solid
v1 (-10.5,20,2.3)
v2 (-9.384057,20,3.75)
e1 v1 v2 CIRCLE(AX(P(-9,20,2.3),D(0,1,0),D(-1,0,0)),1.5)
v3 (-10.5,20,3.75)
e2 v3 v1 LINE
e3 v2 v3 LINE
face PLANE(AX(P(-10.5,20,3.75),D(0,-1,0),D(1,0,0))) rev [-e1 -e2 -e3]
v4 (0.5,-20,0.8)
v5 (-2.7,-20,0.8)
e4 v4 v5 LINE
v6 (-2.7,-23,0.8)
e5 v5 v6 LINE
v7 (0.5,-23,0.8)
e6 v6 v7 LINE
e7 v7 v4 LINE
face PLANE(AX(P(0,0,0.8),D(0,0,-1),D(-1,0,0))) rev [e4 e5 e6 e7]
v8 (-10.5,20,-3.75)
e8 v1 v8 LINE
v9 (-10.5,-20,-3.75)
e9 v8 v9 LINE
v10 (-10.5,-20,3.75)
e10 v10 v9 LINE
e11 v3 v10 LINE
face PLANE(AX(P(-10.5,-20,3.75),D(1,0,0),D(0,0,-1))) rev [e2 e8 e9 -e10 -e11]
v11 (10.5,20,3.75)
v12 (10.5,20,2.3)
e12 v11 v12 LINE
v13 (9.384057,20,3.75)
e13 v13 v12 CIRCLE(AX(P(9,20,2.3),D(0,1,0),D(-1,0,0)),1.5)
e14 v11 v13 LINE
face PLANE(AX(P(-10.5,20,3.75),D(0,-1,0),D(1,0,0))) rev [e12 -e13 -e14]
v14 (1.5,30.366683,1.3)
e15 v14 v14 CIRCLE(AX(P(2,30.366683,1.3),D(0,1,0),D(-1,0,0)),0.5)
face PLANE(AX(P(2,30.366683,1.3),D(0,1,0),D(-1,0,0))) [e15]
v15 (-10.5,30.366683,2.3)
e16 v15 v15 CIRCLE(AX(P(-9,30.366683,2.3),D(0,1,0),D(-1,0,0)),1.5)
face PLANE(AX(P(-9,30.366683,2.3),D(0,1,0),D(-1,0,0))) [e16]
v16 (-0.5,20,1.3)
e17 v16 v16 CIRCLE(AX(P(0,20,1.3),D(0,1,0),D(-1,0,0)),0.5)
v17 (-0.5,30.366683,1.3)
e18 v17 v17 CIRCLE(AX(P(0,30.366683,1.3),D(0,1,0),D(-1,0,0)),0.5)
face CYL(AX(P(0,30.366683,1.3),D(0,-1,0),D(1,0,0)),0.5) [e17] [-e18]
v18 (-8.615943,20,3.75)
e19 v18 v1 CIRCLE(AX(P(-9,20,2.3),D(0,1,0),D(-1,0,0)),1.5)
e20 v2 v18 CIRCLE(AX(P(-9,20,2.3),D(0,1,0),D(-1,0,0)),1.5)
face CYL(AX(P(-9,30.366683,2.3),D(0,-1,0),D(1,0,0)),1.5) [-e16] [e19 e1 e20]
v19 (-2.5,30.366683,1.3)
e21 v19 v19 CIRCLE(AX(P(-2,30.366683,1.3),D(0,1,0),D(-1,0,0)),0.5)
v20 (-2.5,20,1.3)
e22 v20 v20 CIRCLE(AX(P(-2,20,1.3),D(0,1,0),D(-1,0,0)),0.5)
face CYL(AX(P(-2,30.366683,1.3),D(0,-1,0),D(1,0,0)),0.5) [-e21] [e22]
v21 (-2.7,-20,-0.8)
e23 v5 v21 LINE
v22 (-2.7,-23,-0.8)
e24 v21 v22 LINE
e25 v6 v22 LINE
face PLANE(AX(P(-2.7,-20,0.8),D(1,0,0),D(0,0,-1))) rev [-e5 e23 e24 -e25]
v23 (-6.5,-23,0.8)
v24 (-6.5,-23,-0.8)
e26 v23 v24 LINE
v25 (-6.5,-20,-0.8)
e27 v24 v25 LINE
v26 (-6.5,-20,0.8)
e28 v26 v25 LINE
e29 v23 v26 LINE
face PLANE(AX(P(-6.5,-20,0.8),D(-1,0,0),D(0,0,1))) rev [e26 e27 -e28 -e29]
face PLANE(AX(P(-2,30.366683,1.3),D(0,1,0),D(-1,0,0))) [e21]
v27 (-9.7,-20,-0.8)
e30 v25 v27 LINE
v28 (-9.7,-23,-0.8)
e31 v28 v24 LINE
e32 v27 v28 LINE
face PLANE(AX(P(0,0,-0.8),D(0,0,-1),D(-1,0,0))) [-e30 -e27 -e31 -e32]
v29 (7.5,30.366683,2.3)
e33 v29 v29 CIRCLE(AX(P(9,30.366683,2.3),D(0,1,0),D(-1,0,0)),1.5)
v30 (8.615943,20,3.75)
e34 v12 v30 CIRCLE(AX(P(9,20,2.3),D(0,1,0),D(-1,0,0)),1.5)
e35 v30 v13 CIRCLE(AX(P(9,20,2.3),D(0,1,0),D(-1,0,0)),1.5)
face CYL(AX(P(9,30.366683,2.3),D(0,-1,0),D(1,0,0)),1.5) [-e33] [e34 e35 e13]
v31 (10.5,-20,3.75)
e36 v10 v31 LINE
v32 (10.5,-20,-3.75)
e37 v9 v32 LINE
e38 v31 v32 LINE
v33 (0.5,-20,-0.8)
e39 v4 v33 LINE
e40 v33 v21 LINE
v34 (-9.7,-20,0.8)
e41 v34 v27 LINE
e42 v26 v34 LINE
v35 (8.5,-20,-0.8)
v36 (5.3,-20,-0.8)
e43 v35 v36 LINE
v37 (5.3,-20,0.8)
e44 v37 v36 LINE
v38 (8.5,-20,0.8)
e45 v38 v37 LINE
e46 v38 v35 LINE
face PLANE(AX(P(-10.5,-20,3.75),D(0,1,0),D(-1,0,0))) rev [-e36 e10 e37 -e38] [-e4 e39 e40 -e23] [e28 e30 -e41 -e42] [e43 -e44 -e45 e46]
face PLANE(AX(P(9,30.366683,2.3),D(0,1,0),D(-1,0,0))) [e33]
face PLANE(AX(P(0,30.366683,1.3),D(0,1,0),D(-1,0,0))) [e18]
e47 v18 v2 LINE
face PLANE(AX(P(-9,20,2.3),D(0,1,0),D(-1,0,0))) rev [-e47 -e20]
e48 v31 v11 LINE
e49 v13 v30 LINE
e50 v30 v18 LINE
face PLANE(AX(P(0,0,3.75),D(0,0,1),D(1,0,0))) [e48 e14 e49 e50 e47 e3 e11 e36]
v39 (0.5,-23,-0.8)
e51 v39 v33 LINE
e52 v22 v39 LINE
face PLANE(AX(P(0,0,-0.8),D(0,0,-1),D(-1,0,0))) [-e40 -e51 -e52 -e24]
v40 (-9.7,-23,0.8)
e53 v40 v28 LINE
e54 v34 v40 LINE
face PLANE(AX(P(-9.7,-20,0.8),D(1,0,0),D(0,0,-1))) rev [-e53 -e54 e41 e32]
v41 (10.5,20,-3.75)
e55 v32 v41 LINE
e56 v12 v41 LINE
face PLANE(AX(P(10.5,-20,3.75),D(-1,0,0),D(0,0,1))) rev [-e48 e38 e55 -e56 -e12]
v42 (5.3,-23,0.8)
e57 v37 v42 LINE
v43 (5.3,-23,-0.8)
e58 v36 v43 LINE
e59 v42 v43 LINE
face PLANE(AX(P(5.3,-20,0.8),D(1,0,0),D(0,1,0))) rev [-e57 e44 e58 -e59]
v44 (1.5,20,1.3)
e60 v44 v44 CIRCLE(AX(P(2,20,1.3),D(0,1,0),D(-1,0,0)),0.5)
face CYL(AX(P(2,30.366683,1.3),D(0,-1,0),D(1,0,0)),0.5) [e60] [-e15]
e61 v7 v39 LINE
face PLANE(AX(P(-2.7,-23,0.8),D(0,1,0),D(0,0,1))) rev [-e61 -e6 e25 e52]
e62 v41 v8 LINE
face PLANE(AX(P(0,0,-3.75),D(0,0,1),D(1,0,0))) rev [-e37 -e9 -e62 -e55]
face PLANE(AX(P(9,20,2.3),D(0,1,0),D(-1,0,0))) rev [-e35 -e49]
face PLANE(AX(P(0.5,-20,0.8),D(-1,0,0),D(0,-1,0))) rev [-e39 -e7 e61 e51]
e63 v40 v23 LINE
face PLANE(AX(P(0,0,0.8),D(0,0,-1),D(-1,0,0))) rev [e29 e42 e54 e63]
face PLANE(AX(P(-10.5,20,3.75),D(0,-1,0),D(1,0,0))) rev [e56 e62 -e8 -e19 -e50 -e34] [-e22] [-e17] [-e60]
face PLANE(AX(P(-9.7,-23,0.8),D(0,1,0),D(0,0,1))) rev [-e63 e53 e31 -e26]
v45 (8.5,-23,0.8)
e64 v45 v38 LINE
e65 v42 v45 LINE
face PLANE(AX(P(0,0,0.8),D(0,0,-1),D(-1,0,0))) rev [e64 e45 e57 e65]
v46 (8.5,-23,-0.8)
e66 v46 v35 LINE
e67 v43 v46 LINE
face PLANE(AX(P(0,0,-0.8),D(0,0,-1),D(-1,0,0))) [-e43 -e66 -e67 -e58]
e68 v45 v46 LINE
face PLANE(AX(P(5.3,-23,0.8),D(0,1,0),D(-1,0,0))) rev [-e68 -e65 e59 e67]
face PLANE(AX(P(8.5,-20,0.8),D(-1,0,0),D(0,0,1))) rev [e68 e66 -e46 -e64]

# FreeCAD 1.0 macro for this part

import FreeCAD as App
import Part
import Sketcher
Q = App.Units.Quantity

doc = App.newDocument("Part")
body = doc.addObject("PartDesign::Body", "Body")

sketch1 = body.newObject("Sketcher::SketchObject", "Sketch")
sketch1.AttachmentSupport = (doc.getObject("XY_Plane"), [""])
sketch1.MapMode = "FlatFace"
sketch1.addGeometry(Part.LineSegment(App.Vector(-10.5, -20, 0), App.Vector(10.5, -20, 0)), False)
sketch1.addGeometry(Part.LineSegment(App.Vector(10.5, -20, 0), App.Vector(10.5, 20, 0)), False)
sketch1.addGeometry(Part.LineSegment(App.Vector(10.5, 20, 0), App.Vector(-10.5, 20, 0)), False)
sketch1.addGeometry(Part.LineSegment(App.Vector(-10.5, 20, 0), App.Vector(-10.5, -20, 0)), False)
sketch1.addConstraint(Sketcher.Constraint("Coincident", 0, 2, 1, 1))
sketch1.addConstraint(Sketcher.Constraint("Coincident", 1, 2, 2, 1))
sketch1.addConstraint(Sketcher.Constraint("Coincident", 2, 2, 3, 1))
sketch1.addConstraint(Sketcher.Constraint("Coincident", 3, 2, 0, 1))
sketch1.addConstraint(Sketcher.Constraint("Horizontal", 0))
sketch1.addConstraint(Sketcher.Constraint("Vertical", 1))
sketch1.addConstraint(Sketcher.Constraint("Horizontal", 2))
sketch1.addConstraint(Sketcher.Constraint("Vertical", 3))
sketch1.addConstraint(Sketcher.Constraint("Symmetric", 0, 2, 2, 2, -1, 1))
sketch1.addConstraint(Sketcher.Constraint("DistanceX", 0, 1, 0, 2, Q("21 mm")))
sketch1.addConstraint(Sketcher.Constraint("DistanceY", 1, 1, 1, 2, Q("40 mm")))
pad1 = body.newObject("PartDesign::Pad", "Pad")
pad1.Profile = sketch1
pad1.Length = 7.5
pad1.Midplane = True

sketch2 = body.newObject("Sketcher::SketchObject", "Sketch001")
sketch2.AttachmentSupport = (doc.getObject("XY_Plane"), [""])
sketch2.MapMode = "FlatFace"
sketch2.addGeometry(Part.LineSegment(App.Vector(-9.7, -23, 0), App.Vector(-6.5, -23, 0)), False)
sketch2.addGeometry(Part.LineSegment(App.Vector(-6.5, -23, 0), App.Vector(-6.5, -20, 0)), False)
sketch2.addGeometry(Part.LineSegment(App.Vector(-6.5, -20, 0), App.Vector(-9.7, -20, 0)), False)
sketch2.addGeometry(Part.LineSegment(App.Vector(-9.7, -20, 0), App.Vector(-9.7, -23, 0)), False)
sketch2.addGeometry(Part.LineSegment(App.Vector(-2.7, -23, 0), App.Vector(0.5, -23, 0)), False)
sketch2.addGeometry(Part.LineSegment(App.Vector(0.5, -23, 0), App.Vector(0.5, -20, 0)), False)
sketch2.addGeometry(Part.LineSegment(App.Vector(0.5, -20, 0), App.Vector(-2.7, -20, 0)), False)
sketch2.addGeometry(Part.LineSegment(App.Vector(-2.7, -20, 0), App.Vector(-2.7, -23, 0)), False)
sketch2.addGeometry(Part.LineSegment(App.Vector(5.3, -23, 0), App.Vector(8.5, -23, 0)), False)
sketch2.addGeometry(Part.LineSegment(App.Vector(8.5, -23, 0), App.Vector(8.5, -20, 0)), False)
sketch2.addGeometry(Part.LineSegment(App.Vector(8.5, -20, 0), App.Vector(5.3, -20, 0)), False)
sketch2.addGeometry(Part.LineSegment(App.Vector(5.3, -20, 0), App.Vector(5.3, -23, 0)), False)
sketch2.addConstraint(Sketcher.Constraint("Coincident", 0, 2, 1, 1))
sketch2.addConstraint(Sketcher.Constraint("Coincident", 1, 2, 2, 1))
sketch2.addConstraint(Sketcher.Constraint("Coincident", 2, 2, 3, 1))
sketch2.addConstraint(Sketcher.Constraint("Coincident", 3, 2, 0, 1))
sketch2.addConstraint(Sketcher.Constraint("Coincident", 4, 2, 5, 1))
sketch2.addConstraint(Sketcher.Constraint("Coincident", 5, 2, 6, 1))
sketch2.addConstraint(Sketcher.Constraint("Coincident", 6, 2, 7, 1))
sketch2.addConstraint(Sketcher.Constraint("Coincident", 7, 2, 4, 1))
sketch2.addConstraint(Sketcher.Constraint("Coincident", 8, 2, 9, 1))
sketch2.addConstraint(Sketcher.Constraint("Coincident", 9, 2, 10, 1))
sketch2.addConstraint(Sketcher.Constraint("Coincident", 10, 2, 11, 1))
sketch2.addConstraint(Sketcher.Constraint("Coincident", 11, 2, 8, 1))
sketch2.addConstraint(Sketcher.Constraint("Horizontal", 0))
sketch2.addConstraint(Sketcher.Constraint("Vertical", 1))
sketch2.addConstraint(Sketcher.Constraint("Horizontal", 2))
sketch2.addConstraint(Sketcher.Constraint("Vertical", 3))
sketch2.addConstraint(Sketcher.Constraint("Horizontal", 4))
sketch2.addConstraint(Sketcher.Constraint("Vertical", 5))
sketch2.addConstraint(Sketcher.Constraint("Horizontal", 6))
sketch2.addConstraint(Sketcher.Constraint("Vertical", 7))
sketch2.addConstraint(Sketcher.Constraint("Horizontal", 8))
sketch2.addConstraint(Sketcher.Constraint("Vertical", 9))
sketch2.addConstraint(Sketcher.Constraint("Horizontal", 10))
sketch2.addConstraint(Sketcher.Constraint("Vertical", 11))
sketch2.addConstraint(Sketcher.Constraint("Horizontal", 3, 2, 4, 2))
sketch2.addConstraint(Sketcher.Constraint("Horizontal", 2, 2, 5, 2))
sketch2.addConstraint(Sketcher.Constraint("Horizontal", 7, 2, 8, 2))
sketch2.addConstraint(Sketcher.Constraint("Horizontal", 6, 2, 9, 2))
sketch2.addConstraint(Sketcher.Constraint("Equal", 2, 4))
sketch2.addConstraint(Sketcher.Constraint("Equal", 6, 8))
sketch2.addConstraint(Sketcher.Constraint("DistanceY", 1, 1, 1, 2, Q("3 mm")))
sketch2.addConstraint(Sketcher.Constraint("DistanceX", 0, 1, 0, 2, Q("3.2 mm")))
sketch2.addConstraint(Sketcher.Constraint("DistanceY", 0, 2, -1, 1, Q("23 mm")))
sketch2.addConstraint(Sketcher.Constraint("DistanceX", 0, 2, 4, 2, Q("7 mm")))
sketch2.addConstraint(Sketcher.Constraint("DistanceX", 4, 2, 8, 2, Q("8 mm")))
sketch2.addConstraint(Sketcher.Constraint("DistanceX", 0, 2, -1, 1, Q("6.5 mm")))
pad2 = body.newObject("PartDesign::Pad", "Pad001")
pad2.Profile = sketch2
pad2.Length = 1.6
pad2.Midplane = True

sketch3 = body.newObject("Sketcher::SketchObject", "Sketch002")
sketch3.AttachmentSupport = (doc.getObject("XZ_Plane"), [""])
sketch3.MapMode = "FlatFace"
sketch3.AttachmentOffset = App.Placement(App.Vector(0, 0, -20), App.Rotation())
sketch3.addGeometry(Part.Circle(App.Vector(9, 2.3, 0), App.Vector(0, 0, 1), 1.5), False)
sketch3.addGeometry(Part.Circle(App.Vector(-9, 2.3, 0), App.Vector(0, 0, 1), 1.5), False)
sketch3.addGeometry(Part.Circle(App.Vector(0, 1.3, 0), App.Vector(0, 0, 1), 0.5), False)
sketch3.addGeometry(Part.Circle(App.Vector(-2, 1.3, 0), App.Vector(0, 0, 1), 0.5), False)
sketch3.addGeometry(Part.Circle(App.Vector(2, 1.3, 0), App.Vector(0, 0, 1), 0.5), False)
sketch3.addConstraint(Sketcher.Constraint("Equal", 0, 1))
sketch3.addConstraint(Sketcher.Constraint("Equal", 2, 3))
sketch3.addConstraint(Sketcher.Constraint("Equal", 3, 4))
sketch3.addConstraint(Sketcher.Constraint("Symmetric", 0, 3, 1, 3, -2))
sketch3.addConstraint(Sketcher.Constraint("Symmetric", 3, 3, 4, 3, -2))
sketch3.addConstraint(Sketcher.Constraint("PointOnObject", 2, 3, -2))
sketch3.addConstraint(Sketcher.Constraint("Horizontal", 2, 3, 3, 3))
sketch3.addConstraint(Sketcher.Constraint("Diameter", 0, Q("3 mm")))
sketch3.addConstraint(Sketcher.Constraint("Diameter", 2, Q("1 mm")))
sketch3.addConstraint(Sketcher.Constraint("DistanceX", -1, 1, 0, 3, Q("9 mm")))
sketch3.addConstraint(Sketcher.Constraint("DistanceX", 3, 3, -1, 1, Q("2 mm")))
sketch3.addConstraint(Sketcher.Constraint("DistanceY", 2, 3, 0, 3, Q("1 mm")))
sketch3.addConstraint(Sketcher.Constraint("DistanceY", -1, 1, 0, 3, Q("2.3 mm")))
pad3 = body.newObject("PartDesign::Pad", "Pad002")
pad3.Profile = sketch3
pad3.Length = 10.366683
pad3.Reversed = True

doc.recompute()
